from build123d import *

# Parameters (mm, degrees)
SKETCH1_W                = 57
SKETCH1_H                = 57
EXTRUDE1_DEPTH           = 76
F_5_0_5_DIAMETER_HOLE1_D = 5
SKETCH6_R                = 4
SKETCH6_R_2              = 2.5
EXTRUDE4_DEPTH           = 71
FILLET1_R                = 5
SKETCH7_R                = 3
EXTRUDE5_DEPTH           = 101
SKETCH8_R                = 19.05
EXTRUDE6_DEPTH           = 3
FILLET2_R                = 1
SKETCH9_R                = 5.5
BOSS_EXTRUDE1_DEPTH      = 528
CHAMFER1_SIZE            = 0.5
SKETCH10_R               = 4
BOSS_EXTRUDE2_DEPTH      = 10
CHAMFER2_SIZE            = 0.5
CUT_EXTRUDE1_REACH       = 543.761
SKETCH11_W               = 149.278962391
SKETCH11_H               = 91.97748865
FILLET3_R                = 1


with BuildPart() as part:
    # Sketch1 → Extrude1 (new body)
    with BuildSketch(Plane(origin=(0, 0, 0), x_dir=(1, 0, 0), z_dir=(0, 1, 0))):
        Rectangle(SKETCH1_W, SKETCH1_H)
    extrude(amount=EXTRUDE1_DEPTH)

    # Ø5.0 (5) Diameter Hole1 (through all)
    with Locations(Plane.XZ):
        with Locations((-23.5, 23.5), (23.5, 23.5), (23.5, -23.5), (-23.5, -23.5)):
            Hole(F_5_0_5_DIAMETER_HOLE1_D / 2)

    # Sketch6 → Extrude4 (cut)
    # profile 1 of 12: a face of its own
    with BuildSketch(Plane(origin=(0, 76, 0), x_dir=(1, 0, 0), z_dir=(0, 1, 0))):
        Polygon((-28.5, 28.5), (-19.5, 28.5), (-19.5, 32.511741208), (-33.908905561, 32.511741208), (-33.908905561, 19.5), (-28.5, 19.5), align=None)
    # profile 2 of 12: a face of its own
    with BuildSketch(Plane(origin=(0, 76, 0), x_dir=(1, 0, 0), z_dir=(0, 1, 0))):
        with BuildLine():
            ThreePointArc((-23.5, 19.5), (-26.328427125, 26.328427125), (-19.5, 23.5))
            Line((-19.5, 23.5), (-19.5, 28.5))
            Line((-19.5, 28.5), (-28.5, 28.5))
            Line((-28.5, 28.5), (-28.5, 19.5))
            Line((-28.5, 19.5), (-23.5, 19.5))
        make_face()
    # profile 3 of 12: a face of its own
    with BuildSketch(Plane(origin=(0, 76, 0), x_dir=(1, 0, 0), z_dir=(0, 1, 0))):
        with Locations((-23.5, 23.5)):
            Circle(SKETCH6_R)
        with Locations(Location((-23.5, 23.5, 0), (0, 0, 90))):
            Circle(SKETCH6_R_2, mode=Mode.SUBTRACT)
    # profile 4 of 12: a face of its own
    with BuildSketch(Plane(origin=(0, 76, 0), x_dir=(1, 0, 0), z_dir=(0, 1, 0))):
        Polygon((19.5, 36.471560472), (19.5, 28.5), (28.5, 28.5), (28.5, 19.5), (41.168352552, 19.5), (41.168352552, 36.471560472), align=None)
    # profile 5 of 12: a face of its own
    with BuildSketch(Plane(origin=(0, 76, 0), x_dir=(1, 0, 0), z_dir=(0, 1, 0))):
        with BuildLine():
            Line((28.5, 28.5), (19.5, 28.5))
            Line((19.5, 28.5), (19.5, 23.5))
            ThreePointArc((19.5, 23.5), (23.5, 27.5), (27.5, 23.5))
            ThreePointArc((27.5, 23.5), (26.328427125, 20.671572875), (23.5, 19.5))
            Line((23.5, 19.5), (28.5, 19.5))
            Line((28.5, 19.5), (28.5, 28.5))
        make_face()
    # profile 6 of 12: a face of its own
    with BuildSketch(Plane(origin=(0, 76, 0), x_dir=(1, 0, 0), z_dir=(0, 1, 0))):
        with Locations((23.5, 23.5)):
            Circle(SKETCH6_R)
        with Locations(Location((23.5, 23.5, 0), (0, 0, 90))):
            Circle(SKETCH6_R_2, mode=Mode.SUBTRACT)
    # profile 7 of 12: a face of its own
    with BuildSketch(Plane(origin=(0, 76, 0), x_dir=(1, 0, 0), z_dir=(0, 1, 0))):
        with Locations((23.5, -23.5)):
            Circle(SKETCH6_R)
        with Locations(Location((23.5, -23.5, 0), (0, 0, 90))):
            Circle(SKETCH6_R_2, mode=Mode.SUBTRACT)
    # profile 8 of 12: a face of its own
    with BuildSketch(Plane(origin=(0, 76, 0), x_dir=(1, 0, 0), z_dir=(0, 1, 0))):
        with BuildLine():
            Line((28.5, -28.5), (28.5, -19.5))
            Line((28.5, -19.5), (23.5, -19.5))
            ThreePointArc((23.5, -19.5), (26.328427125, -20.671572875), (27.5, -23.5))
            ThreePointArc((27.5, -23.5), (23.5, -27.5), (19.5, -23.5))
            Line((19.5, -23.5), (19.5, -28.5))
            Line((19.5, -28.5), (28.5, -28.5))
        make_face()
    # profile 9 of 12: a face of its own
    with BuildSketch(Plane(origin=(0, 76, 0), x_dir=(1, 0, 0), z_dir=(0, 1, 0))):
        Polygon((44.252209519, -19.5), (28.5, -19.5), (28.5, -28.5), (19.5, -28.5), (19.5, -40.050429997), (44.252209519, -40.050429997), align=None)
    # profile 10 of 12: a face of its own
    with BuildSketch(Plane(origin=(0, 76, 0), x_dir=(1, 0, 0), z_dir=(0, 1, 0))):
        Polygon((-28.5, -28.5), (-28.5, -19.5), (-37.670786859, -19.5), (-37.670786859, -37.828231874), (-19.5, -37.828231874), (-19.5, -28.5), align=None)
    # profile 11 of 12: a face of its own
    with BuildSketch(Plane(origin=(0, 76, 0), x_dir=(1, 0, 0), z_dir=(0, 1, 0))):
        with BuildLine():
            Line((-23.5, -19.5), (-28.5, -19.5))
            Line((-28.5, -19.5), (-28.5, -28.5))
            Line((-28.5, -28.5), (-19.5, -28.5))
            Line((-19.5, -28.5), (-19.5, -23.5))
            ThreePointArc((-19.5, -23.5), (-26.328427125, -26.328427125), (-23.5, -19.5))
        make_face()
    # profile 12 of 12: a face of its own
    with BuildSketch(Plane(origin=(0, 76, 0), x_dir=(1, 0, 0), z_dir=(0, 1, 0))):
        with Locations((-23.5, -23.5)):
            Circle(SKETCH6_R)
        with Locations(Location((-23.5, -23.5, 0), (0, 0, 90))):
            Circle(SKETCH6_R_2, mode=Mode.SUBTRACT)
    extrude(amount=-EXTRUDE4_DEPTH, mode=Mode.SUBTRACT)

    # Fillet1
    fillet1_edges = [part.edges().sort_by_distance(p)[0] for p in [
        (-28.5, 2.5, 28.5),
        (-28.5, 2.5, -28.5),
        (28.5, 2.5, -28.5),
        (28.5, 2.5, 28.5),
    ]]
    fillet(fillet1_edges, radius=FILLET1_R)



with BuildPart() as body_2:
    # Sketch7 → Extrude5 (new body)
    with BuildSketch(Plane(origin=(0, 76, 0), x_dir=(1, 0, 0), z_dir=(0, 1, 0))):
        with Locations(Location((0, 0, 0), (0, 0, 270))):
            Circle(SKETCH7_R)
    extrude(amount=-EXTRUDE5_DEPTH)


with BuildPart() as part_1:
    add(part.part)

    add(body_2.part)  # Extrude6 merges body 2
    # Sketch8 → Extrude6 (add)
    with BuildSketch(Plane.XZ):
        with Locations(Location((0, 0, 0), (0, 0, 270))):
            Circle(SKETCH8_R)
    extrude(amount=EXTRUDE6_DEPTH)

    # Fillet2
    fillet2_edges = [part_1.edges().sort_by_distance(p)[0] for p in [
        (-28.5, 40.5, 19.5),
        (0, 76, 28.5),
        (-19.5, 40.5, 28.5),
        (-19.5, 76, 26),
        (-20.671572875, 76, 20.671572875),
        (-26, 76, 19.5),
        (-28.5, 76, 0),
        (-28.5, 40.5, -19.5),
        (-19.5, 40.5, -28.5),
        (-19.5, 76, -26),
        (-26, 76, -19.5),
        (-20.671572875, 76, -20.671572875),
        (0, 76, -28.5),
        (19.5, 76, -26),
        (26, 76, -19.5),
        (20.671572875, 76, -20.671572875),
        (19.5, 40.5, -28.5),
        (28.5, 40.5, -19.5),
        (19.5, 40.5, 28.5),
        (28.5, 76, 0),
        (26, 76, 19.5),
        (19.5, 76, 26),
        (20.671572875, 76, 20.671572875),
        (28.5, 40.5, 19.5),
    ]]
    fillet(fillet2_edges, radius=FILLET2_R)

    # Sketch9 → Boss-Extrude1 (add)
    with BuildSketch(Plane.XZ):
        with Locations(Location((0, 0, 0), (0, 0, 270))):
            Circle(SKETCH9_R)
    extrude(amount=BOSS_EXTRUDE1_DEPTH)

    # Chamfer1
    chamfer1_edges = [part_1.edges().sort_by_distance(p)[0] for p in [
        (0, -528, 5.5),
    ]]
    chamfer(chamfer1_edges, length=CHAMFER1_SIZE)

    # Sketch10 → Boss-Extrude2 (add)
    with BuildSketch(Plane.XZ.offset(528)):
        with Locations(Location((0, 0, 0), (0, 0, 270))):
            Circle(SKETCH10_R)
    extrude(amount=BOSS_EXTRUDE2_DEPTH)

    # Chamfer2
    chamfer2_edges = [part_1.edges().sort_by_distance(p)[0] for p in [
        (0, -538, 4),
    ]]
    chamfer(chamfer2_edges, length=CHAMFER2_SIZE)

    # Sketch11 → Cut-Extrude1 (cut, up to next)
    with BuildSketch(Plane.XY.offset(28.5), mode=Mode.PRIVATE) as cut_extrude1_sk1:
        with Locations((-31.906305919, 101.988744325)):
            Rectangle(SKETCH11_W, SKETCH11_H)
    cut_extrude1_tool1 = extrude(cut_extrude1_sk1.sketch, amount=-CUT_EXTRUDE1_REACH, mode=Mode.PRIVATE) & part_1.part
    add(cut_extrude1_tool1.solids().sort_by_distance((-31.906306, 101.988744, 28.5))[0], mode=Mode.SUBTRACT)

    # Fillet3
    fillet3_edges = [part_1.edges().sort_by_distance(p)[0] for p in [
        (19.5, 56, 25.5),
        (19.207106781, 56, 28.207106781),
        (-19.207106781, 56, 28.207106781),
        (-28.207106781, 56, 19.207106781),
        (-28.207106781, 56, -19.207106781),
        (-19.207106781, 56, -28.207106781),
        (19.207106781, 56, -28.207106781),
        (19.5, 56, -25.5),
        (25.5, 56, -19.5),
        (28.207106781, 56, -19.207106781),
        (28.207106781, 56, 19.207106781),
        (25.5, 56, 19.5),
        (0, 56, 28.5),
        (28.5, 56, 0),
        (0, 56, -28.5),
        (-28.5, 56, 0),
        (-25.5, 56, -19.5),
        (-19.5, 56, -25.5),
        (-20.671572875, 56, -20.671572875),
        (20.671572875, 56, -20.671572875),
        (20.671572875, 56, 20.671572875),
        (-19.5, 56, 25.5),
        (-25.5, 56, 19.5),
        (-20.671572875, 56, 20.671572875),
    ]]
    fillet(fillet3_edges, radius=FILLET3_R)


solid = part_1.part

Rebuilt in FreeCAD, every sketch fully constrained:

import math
import FreeCAD as App
import Part
import Sketcher

V = App.Vector


def edges_at(feature, points):
    """Names of the edges that pass closest to the given points."""
    edges = feature.Shape.Edges
    near = lambda p: min(range(len(edges)), key=lambda i: edges[i].distToShape(Part.Vertex(*p))[0])
    return sorted({f"Edge{near(p) + 1}" for p in points})


def add_polygon(sketch, points):
    """Adds a closed chain of lines whose ends are joined by coincident constraints."""
    first, n = sketch.GeometryCount, len(points)
    for a, b in zip(points, points[1:] + points[:1]):
        sketch.addGeometry(Part.LineSegment(App.Vector(*a, 0), App.Vector(*b, 0)), False)
    for i in range(n):
        sketch.addConstraint(Sketcher.Constraint("Coincident", first + i, 2, first + (i + 1) % n, 1))

doc = App.newDocument("Part")
body = doc.addObject("PartDesign::Body", "Body")

sketch1 = doc.addObject("Sketcher::SketchObject", "Sketch")
body.addObject(sketch1)
sketch1.AttachmentSupport = (doc.XZ_Plane, [""])
sketch1.MapMode = "FlatFace"
add_polygon(sketch1, [(-28.5, -28.5), (-28.5, 28.5), (28.5, 28.5), (28.5, -28.5)])
sketch1.addConstraint([
    Sketcher.Constraint("Vertical", 0),
    Sketcher.Constraint("Horizontal", 1),
    Sketcher.Constraint("Vertical", 2),
    Sketcher.Constraint("Horizontal", 3),
    Sketcher.Constraint("Symmetric", 0, 2, 2, 2, -1, 1),
    Sketcher.Constraint("Equal", 3, 0),
    Sketcher.Constraint("DistanceX", 1, 1, 1, 2, 57.0),
])
pad1 = doc.addObject("PartDesign::Pad", "Pad")
body.addObject(pad1)
pad1.Profile = sketch1
pad1.Length = 76
pad1.Reversed = True

sketch2 = doc.addObject("Sketcher::SketchObject", "Sketch001")
body.addObject(sketch2)
sketch2.AttachmentSupport = (doc.XZ_Plane, [""])
sketch2.MapMode = "FlatFace"
sketch2.addGeometry([
    Part.Circle(V(-23.5, 23.5, 0), V(0, 0, 1), 2.5),
    Part.Circle(V(23.5, 23.5, 0), V(0, 0, 1), 2.5),
    Part.Circle(V(23.5, -23.5, 0), V(0, 0, 1), 2.5),
    Part.Circle(V(-23.5, -23.5, 0), V(0, 0, 1), 2.5),
], False)
sketch2.addConstraint([
    Sketcher.Constraint("Equal", 0, 1),
    Sketcher.Constraint("Equal", 1, 2),
    Sketcher.Constraint("Equal", 2, 3),
    Sketcher.Constraint("Symmetric", 0, 3, 2, 3, -1, 1),
    Sketcher.Constraint("Symmetric", 1, 3, 3, 3, -1, 1),
    Sketcher.Constraint("Symmetric", 0, 3, 1, 3, -2),
    Sketcher.Constraint("Diameter", 0, 5.0),
    Sketcher.Constraint("DistanceX", 0, 3, 1, 3, 47.0),
    Sketcher.Constraint("DistanceY", 2, 3, 1, 3, 47.0),
])
doc.recompute()
hole = doc.addObject("PartDesign::Hole", "Hole")
body.addObject(hole)
hole.Profile = sketch2
hole.ThreadType = "None"
hole.Diameter = 5
hole.DepthType = "ThroughAll"

sketch3 = doc.addObject("Sketcher::SketchObject", "Sketch002")
body.addObject(sketch3)
sketch3.AttachmentSupport = (doc.XZ_Plane, [""])
sketch3.MapMode = "FlatFace"
sketch3.AttachmentOffset = App.Placement(V(0, 0, -76), App.Rotation())
sketch3.addGeometry([
    Part.LineSegment(V(-19.5, -32.511741, 0), V(-33.908906, -32.511741, 0)),
    Part.LineSegment(V(-33.908906, -32.511741, 0), V(-33.908906, -19.5, 0)),
    Part.LineSegment(V(-33.908906, -19.5, 0), V(-23.5, -19.5, 0)),
    Part.ArcOfCircle(Part.Circle(V(-23.5, -23.5, 0), V(0, 0, 1), 4), math.radians(0), math.radians(90)),
    Part.LineSegment(V(-19.5, -23.5, 0), V(-19.5, -32.511741, 0)),
    Part.Circle(V(-23.5, -23.5, 0), V(0, 0, 1), 2.5),
    Part.LineSegment(V(19.5, -36.47156, 0), V(19.5, -23.5, 0)),
    Part.ArcOfCircle(Part.Circle(V(23.5, -23.5, 0), V(0, 0, 1), 4), math.radians(90), math.radians(180)),
    Part.LineSegment(V(23.5, -19.5, 0), V(41.168353, -19.5, 0)),
    Part.LineSegment(V(41.168353, -19.5, 0), V(41.168353, -36.47156, 0)),
    Part.LineSegment(V(41.168353, -36.47156, 0), V(19.5, -36.47156, 0)),
    Part.Circle(V(23.5, -23.5, 0), V(0, 0, 1), 2.5),
    Part.ArcOfCircle(Part.Circle(V(23.5, 23.5, 0), V(0, 0, 1), 4), math.radians(180), math.radians(270)),
    Part.LineSegment(V(19.5, 23.5, 0), V(19.5, 40.05043, 0)),
    Part.LineSegment(V(19.5, 40.05043, 0), V(44.25221, 40.05043, 0)),
    Part.LineSegment(V(44.25221, 40.05043, 0), V(44.25221, 19.5, 0)),
    Part.LineSegment(V(44.25221, 19.5, 0), V(23.5, 19.5, 0)),
    Part.Circle(V(23.5, 23.5, 0), V(0, 0, 1), 2.5),
    Part.LineSegment(V(-37.670787, 19.5, 0), V(-37.670787, 37.828232, 0)),
    Part.LineSegment(V(-37.670787, 37.828232, 0), V(-19.5, 37.828232, 0)),
    Part.LineSegment(V(-19.5, 37.828232, 0), V(-19.5, 23.5, 0)),
    Part.ArcOfCircle(Part.Circle(V(-23.5, 23.5, 0), V(0, 0, 1), 4), math.radians(-90), math.radians(0)),
    Part.LineSegment(V(-23.5, 19.5, 0), V(-37.670787, 19.5, 0)),
    Part.Circle(V(-23.5, 23.5, 0), V(0, 0, 1), 2.5),
], False)
sketch3.addConstraint([
    Sketcher.Constraint("Coincident", 0, 2, 1, 1),
    Sketcher.Constraint("Coincident", 1, 2, 2, 1),
    Sketcher.Constraint("Tangent", 2, 2, 3, 2),
    Sketcher.Constraint("Tangent", 3, 1, 4, 1),
    Sketcher.Constraint("Coincident", 4, 2, 0, 1),
    Sketcher.Constraint("Tangent", 6, 2, 7, 2),
    Sketcher.Constraint("Tangent", 7, 1, 8, 1),
    Sketcher.Constraint("Coincident", 8, 2, 9, 1),
    Sketcher.Constraint("Coincident", 9, 2, 10, 1),
    Sketcher.Constraint("Coincident", 10, 2, 6, 1),
    Sketcher.Constraint("Tangent", 12, 1, 13, 1),
    Sketcher.Constraint("Coincident", 13, 2, 14, 1),
    Sketcher.Constraint("Coincident", 14, 2, 15, 1),
    Sketcher.Constraint("Coincident", 15, 2, 16, 1),
    Sketcher.Constraint("Tangent", 16, 2, 12, 2),
    Sketcher.Constraint("Coincident", 18, 2, 19, 1),
    Sketcher.Constraint("Coincident", 19, 2, 20, 1),
    Sketcher.Constraint("Tangent", 20, 2, 21, 2),
    Sketcher.Constraint("Tangent", 21, 1, 22, 1),
    Sketcher.Constraint("Coincident", 22, 2, 18, 1),
    Sketcher.Constraint("Horizontal", 0),
    Sketcher.Constraint("Vertical", 1),
    Sketcher.Constraint("Horizontal", 2),
    Sketcher.Constraint("Vertical", 4),
    Sketcher.Constraint("Vertical", 6),
    Sketcher.Constraint("Horizontal", 8),
    Sketcher.Constraint("Vertical", 9),
    Sketcher.Constraint("Horizontal", 10),
    Sketcher.Constraint("Vertical", 13),
    Sketcher.Constraint("Horizontal", 14),
    Sketcher.Constraint("Vertical", 15),
    Sketcher.Constraint("Horizontal", 16),
    Sketcher.Constraint("Vertical", 18),
    Sketcher.Constraint("Horizontal", 19),
    Sketcher.Constraint("Vertical", 20),
    Sketcher.Constraint("Horizontal", 22),
    Sketcher.Constraint("Coincident", 5, 3, 3, 3),
    Sketcher.Constraint("Coincident", 11, 3, 7, 3),
    Sketcher.Constraint("Coincident", 17, 3, 12, 3),
    Sketcher.Constraint("Coincident", 23, 3, 21, 3),
    Sketcher.Constraint("Equal", 3, 7),
    Sketcher.Constraint("Equal", 5, 11),
    Sketcher.Constraint("Equal", 7, 12),
    Sketcher.Constraint("Equal", 11, 17),
    Sketcher.Constraint("Equal", 12, 21),
    Sketcher.Constraint("Equal", 17, 23),
    Sketcher.Constraint("Symmetric", 3, 3, 12, 3, -1, 1),
    Sketcher.Constraint("Symmetric", 7, 3, 21, 3, -1, 1),
    Sketcher.Constraint("Symmetric", 3, 3, 7, 3, -2),
    Sketcher.Constraint("Diameter", 5, 5.0),
    Sketcher.Constraint("Radius", 3, 4.0),
    Sketcher.Constraint("DistanceX", 3, 3, 7, 3, 47.0),
    Sketcher.Constraint("DistanceY", 7, 3, 12, 3, 47.0),
    Sketcher.Constraint("DistanceX", 14, 1, 14, 2, 24.75221),
    Sketcher.Constraint("DistanceY", 1, 1, 1, 2, 13.011741),
    Sketcher.Constraint("DistanceY", 6, 1, 6, 2, 12.97156),
    Sketcher.Constraint("DistanceY", 13, 1, 13, 2, 16.55043),
    Sketcher.Constraint("DistanceY", 18, 1, 18, 2, 18.328232),
    Sketcher.Constraint("DistanceX", 0, 2, 0, 1, 14.408906),
    Sketcher.Constraint("DistanceX", 8, 1, 8, 2, 17.668353),
    Sketcher.Constraint("DistanceX", 19, 1, 19, 2, 18.170787),
])
pocket1 = doc.addObject("PartDesign::Pocket", "Pocket")
body.addObject(pocket1)
pocket1.Profile = sketch3
pocket1.Length = 71
pocket1.Reversed = True
doc.recompute()

fillet = doc.addObject("PartDesign::Fillet", "Fillet")
body.addObject(fillet)
fillet.Base = (pocket1, edges_at(pocket1, [
    (-28.5, 2.5, 28.5),
    (-28.5, 2.5, -28.5),
    (28.5, 2.5, -28.5),
    (28.5, 2.5, 28.5),
]))
fillet.Radius = 5
body2 = doc.addObject("PartDesign::Body", "Body001")

sketch4 = doc.addObject("Sketcher::SketchObject", "Sketch003")
body2.addObject(sketch4)
sketch4.AttachmentSupport = (doc.getObject("XZ_Plane001"), [""])
sketch4.MapMode = "FlatFace"
sketch4.AttachmentOffset = App.Placement(V(0, 0, -76), App.Rotation())
sketch4.addGeometry(Part.Circle(V(0, 0, 0), V(0, 0, 1), 3), False)
sketch4.addConstraint([
    Sketcher.Constraint("Coincident", 0, 3, -1, 1),
    Sketcher.Constraint("Diameter", 0, 6.0),
])
pad2 = doc.addObject("PartDesign::Pad", "Pad001")
body2.addObject(pad2)
pad2.Profile = sketch4
pad2.Length = 101
doc.recompute()

boolean = doc.addObject("PartDesign::Boolean", "Boolean")
body.addObject(boolean)
boolean.Type = "Fuse"
boolean.addObjects([body2])

sketch5 = doc.addObject("Sketcher::SketchObject", "Sketch004")
body.addObject(sketch5)
sketch5.AttachmentSupport = (doc.XZ_Plane, [""])
sketch5.MapMode = "FlatFace"
sketch5.addGeometry(Part.Circle(V(0, 0, 0), V(0, 0, 1), 19.05), False)
sketch5.addConstraint([
    Sketcher.Constraint("Coincident", 0, 3, -1, 1),
    Sketcher.Constraint("Diameter", 0, 38.1),
])
pad3 = doc.addObject("PartDesign::Pad", "Pad002")
body.addObject(pad3)
pad3.Profile = sketch5
pad3.Length = 3
doc.recompute()

fillet2 = doc.addObject("PartDesign::Fillet", "Fillet001")
body.addObject(fillet2)
fillet2.Base = (pad3, edges_at(pad3, [
    (-28.5, 40.5, 19.5),
    (0, 76, 28.5),
    (-19.5, 40.5, 28.5),
    (-19.5, 76, 26),
    (-20.672, 76, 20.672),
    (-26, 76, 19.5),
    (-28.5, 76, 0),
    (-28.5, 40.5, -19.5),
    (-19.5, 40.5, -28.5),
    (-19.5, 76, -26),
    (-26, 76, -19.5),
    (-20.672, 76, -20.672),
    (0, 76, -28.5),
    (19.5, 76, -26),
    (26, 76, -19.5),
    (20.672, 76, -20.672),
    (19.5, 40.5, -28.5),
    (28.5, 40.5, -19.5),
    (19.5, 40.5, 28.5),
    (28.5, 76, 0),
    (26, 76, 19.5),
    (19.5, 76, 26),
    (20.672, 76, 20.672),
    (28.5, 40.5, 19.5),
]))
fillet2.Radius = 1

sketch6 = doc.addObject("Sketcher::SketchObject", "Sketch005")
body.addObject(sketch6)
sketch6.AttachmentSupport = (doc.XZ_Plane, [""])
sketch6.MapMode = "FlatFace"
sketch6.addGeometry(Part.Circle(V(0, 0, 0), V(0, 0, 1), 5.5), False)
sketch6.addConstraint([
    Sketcher.Constraint("Coincident", 0, 3, -1, 1),
    Sketcher.Constraint("Diameter", 0, 11.0),
])
pad4 = doc.addObject("PartDesign::Pad", "Pad003")
body.addObject(pad4)
pad4.Profile = sketch6
pad4.Length = 528
doc.recompute()

chamfer = doc.addObject("PartDesign::Chamfer", "Chamfer")
body.addObject(chamfer)
chamfer.Base = (pad4, edges_at(pad4, [(0, -528, 5.5)]))
chamfer.Size = 0.5

sketch7 = doc.addObject("Sketcher::SketchObject", "Sketch006")
body.addObject(sketch7)
sketch7.AttachmentSupport = (doc.XZ_Plane, [""])
sketch7.MapMode = "FlatFace"
sketch7.AttachmentOffset = App.Placement(V(0, 0, 528), App.Rotation())
sketch7.addGeometry(Part.Circle(V(0, 0, 0), V(0, 0, 1), 4), False)
sketch7.addConstraint([
    Sketcher.Constraint("Coincident", 0, 3, -1, 1),
    Sketcher.Constraint("Diameter", 0, 8.0),
])
pad5 = doc.addObject("PartDesign::Pad", "Pad004")
body.addObject(pad5)
pad5.Profile = sketch7
pad5.Length = 10
doc.recompute()

chamfer2 = doc.addObject("PartDesign::Chamfer", "Chamfer001")
body.addObject(chamfer2)
chamfer2.Base = (pad5, edges_at(pad5, [(0, -538, 4)]))
chamfer2.Size = 0.5

sketch8 = doc.addObject("Sketcher::SketchObject", "Sketch007")
body.addObject(sketch8)
sketch8.AttachmentSupport = (doc.XY_Plane, [""])
sketch8.MapMode = "FlatFace"
sketch8.AttachmentOffset = App.Placement(V(0, 0, 28.5), App.Rotation())
add_polygon(sketch8, [(-106.545787, 147.977489), (-106.545787, 56), (42.733175, 56), (42.733175, 147.977489)])
sketch8.addConstraint([
    Sketcher.Constraint("Vertical", 0),
    Sketcher.Constraint("Horizontal", 1),
    Sketcher.Constraint("Vertical", 2),
    Sketcher.Constraint("Horizontal", 3),
    Sketcher.Constraint("DistanceY", -1, 1, 0, 2, 56.0),
    Sketcher.Constraint("DistanceY", 0, 2, 0, 1, 91.977489),
    Sketcher.Constraint("DistanceX", 1, 1, 1, 2, 149.278962),
    Sketcher.Constraint("DistanceX", 0, 2, -1, 1, 106.545787),
])
pocket2 = doc.addObject("PartDesign::Pocket", "Pocket001")
body.addObject(pocket2)
pocket2.Profile = sketch8
pocket2.Length = 57
doc.recompute()

fillet3 = doc.addObject("PartDesign::Fillet", "Fillet002")
body.addObject(fillet3)
fillet3.Base = (pocket2, edges_at(pocket2, [
    (19.5, 56, 25.5),
    (19.207, 56, 28.207),
    (-19.207, 56, 28.207),
    (-28.207, 56, 19.207),
    (-28.207, 56, -19.207),
    (-19.207, 56, -28.207),
    (19.207, 56, -28.207),
    (19.5, 56, -25.5),
    (25.5, 56, -19.5),
    (28.207, 56, -19.207),
    (28.207, 56, 19.207),
    (25.5, 56, 19.5),
    (0, 56, 28.5),
    (28.5, 56, 0),
    (0, 56, -28.5),
    (-28.5, 56, 0),
    (-25.5, 56, -19.5),
    (-19.5, 56, -25.5),
    (-20.672, 56, -20.672),
    (20.672, 56, -20.672),
    (20.672, 56, 20.672),
    (-19.5, 56, 25.5),
    (-25.5, 56, 19.5),
    (-20.672, 56, 20.672),
]))
fillet3.Radius = 1

doc.recompute()
